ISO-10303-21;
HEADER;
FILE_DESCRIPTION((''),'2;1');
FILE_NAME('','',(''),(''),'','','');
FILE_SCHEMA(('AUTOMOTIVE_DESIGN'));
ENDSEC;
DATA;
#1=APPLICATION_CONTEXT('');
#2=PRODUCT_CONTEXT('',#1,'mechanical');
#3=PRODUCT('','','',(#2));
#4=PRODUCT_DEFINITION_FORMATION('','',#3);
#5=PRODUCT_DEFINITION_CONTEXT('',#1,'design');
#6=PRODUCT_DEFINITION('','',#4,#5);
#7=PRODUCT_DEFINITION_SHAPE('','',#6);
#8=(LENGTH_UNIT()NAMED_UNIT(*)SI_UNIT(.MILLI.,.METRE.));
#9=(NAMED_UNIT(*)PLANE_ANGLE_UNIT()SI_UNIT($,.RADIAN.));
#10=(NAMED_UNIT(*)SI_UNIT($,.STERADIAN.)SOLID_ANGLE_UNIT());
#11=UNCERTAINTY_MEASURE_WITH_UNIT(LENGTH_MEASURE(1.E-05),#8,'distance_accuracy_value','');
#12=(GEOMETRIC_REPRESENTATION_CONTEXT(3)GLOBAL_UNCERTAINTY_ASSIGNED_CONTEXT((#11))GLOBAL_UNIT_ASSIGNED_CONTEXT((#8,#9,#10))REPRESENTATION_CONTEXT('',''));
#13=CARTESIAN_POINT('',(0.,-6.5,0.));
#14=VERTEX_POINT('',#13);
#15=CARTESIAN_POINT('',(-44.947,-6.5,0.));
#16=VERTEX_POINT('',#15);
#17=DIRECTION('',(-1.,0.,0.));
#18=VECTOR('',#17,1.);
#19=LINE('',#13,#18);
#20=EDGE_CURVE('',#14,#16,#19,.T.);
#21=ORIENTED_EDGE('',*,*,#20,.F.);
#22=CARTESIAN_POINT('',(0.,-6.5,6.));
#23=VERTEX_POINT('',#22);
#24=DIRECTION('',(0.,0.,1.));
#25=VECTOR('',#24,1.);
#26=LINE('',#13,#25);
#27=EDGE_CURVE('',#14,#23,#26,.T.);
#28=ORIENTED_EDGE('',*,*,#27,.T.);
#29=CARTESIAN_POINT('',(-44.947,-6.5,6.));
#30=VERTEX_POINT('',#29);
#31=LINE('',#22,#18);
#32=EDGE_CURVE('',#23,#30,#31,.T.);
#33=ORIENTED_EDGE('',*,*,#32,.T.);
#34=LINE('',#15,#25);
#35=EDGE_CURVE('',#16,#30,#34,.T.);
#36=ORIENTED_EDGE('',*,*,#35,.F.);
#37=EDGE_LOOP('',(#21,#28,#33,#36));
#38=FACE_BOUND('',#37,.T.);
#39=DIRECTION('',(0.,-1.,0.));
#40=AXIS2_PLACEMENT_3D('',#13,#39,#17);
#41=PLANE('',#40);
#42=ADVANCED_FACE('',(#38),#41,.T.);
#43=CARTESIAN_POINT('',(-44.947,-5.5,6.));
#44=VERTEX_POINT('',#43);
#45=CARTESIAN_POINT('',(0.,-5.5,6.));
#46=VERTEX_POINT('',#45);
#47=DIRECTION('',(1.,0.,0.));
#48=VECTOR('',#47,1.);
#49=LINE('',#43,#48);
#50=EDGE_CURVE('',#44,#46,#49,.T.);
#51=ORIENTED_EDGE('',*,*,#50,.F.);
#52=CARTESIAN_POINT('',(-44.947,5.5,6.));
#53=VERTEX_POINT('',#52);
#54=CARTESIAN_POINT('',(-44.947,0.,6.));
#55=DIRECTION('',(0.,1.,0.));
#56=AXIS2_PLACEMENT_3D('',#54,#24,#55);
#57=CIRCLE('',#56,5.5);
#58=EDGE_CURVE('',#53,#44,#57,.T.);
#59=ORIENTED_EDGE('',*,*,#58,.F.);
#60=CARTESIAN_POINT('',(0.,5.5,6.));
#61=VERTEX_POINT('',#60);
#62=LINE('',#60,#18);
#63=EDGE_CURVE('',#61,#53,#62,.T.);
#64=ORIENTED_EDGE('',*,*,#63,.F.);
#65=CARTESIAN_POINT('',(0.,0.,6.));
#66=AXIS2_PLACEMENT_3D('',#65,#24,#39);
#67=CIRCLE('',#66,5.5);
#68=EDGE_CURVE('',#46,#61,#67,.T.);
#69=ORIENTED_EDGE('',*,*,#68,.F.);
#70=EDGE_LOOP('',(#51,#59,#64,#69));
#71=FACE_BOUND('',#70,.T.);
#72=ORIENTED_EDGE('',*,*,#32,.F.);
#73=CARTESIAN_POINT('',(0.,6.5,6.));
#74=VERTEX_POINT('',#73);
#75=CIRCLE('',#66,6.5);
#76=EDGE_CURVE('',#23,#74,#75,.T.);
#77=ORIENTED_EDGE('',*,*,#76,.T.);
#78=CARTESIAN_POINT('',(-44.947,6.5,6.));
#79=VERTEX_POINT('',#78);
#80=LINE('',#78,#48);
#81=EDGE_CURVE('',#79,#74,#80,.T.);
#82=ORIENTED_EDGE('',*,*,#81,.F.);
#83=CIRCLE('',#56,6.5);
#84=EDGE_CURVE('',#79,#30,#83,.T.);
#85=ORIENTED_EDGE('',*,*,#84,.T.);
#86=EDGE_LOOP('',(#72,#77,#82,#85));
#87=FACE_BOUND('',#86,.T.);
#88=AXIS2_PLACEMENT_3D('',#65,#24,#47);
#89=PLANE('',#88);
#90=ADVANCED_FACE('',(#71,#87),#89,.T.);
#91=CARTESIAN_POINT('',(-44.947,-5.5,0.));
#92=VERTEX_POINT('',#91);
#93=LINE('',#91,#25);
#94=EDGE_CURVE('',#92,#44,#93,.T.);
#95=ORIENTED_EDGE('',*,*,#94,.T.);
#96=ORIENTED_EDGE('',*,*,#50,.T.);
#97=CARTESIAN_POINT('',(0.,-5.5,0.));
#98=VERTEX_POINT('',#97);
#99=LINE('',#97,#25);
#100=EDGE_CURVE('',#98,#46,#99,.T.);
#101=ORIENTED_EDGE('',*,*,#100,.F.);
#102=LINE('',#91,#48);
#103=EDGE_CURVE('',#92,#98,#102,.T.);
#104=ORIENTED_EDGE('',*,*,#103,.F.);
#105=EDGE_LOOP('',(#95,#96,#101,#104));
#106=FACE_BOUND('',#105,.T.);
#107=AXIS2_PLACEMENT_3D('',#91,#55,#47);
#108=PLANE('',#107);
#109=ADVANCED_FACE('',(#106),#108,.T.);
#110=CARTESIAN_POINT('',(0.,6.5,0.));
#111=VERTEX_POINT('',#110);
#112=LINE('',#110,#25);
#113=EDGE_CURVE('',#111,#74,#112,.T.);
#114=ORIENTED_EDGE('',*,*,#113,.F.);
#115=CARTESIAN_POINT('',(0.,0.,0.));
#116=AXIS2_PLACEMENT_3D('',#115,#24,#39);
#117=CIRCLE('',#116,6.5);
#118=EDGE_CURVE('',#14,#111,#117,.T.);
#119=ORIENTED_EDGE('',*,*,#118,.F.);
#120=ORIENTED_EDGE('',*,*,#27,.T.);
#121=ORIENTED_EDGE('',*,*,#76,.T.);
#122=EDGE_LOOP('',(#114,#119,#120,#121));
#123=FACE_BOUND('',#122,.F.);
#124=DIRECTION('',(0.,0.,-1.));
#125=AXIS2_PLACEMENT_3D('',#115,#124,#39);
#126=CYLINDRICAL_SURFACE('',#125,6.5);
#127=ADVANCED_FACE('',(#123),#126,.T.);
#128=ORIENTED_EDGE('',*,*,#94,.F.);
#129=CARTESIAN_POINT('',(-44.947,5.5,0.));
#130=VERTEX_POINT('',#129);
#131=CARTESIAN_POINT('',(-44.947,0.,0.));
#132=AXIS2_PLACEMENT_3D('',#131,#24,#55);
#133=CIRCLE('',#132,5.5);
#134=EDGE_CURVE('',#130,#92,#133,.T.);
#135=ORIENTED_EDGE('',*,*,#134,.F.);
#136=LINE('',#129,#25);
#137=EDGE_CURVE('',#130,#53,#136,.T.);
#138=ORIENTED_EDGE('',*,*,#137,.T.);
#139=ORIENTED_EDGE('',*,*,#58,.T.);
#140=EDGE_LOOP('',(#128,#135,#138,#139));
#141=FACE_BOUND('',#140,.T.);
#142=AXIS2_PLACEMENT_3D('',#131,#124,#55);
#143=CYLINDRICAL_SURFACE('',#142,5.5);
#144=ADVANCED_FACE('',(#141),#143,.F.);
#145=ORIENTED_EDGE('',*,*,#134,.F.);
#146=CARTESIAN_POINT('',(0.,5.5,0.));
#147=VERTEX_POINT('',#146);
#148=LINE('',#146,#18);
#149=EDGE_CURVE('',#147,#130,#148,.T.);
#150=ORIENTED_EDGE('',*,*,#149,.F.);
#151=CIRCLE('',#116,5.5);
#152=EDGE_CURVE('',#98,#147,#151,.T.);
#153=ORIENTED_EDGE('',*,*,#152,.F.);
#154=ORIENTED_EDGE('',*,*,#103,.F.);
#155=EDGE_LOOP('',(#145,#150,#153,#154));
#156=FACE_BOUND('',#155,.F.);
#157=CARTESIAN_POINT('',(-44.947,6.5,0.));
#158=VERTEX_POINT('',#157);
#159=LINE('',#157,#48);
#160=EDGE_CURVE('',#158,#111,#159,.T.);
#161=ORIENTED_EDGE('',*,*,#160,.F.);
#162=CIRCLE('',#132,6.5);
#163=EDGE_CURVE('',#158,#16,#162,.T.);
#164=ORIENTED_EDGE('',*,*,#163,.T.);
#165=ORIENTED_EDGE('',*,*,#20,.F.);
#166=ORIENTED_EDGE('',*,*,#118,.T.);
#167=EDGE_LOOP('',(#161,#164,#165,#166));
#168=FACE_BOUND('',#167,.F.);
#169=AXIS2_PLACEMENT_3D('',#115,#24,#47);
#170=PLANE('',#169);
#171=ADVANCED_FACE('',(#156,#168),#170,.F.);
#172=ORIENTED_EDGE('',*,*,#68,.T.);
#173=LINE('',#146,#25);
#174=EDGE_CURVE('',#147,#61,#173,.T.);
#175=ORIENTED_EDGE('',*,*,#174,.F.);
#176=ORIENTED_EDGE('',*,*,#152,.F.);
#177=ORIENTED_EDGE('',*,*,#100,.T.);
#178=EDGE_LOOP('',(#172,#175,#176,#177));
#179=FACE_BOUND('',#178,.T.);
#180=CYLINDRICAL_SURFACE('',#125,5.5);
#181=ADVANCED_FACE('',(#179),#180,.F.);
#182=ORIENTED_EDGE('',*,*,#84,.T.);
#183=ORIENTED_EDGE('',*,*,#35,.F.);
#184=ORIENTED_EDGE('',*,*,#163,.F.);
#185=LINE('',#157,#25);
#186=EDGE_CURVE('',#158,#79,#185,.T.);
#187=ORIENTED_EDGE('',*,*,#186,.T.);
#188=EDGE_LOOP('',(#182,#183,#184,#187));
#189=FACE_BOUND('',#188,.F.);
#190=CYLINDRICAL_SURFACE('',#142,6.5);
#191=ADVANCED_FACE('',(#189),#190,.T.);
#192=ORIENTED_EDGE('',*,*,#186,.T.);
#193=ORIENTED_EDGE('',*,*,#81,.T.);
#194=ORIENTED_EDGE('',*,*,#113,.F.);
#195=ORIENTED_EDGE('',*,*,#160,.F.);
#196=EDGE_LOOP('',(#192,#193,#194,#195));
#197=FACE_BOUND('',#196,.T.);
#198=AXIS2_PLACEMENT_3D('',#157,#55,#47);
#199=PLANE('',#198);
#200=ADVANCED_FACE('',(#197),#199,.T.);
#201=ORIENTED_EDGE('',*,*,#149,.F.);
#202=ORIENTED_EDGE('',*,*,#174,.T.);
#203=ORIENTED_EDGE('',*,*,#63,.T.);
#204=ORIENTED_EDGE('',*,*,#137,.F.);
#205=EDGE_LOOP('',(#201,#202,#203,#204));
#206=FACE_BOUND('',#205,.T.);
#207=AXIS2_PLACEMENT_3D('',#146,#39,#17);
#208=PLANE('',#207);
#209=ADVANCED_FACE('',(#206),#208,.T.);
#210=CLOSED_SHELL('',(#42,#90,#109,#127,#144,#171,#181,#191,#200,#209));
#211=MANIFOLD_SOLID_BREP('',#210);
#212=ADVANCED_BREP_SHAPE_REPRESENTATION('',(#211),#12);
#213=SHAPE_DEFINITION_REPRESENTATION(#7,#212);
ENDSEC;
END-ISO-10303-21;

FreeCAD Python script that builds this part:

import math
import FreeCAD as App
import Part
import Sketcher
Q = App.Units.Quantity

doc = App.newDocument("Part")
params = doc.addObject("Spreadsheet::Sheet", "Params")
for row, (alias, value) in enumerate([
    ("sketch1_radius", "6.5 mm"),
    ("sketch1_radius2", "5.5 mm"),
    ("pad1_length", "6 mm"),
], start=1):
    params.set(f"A{row}", alias)
    params.set(f"B{row}", "=" + value)
    params.setAlias(f"B{row}", alias)

body = doc.addObject("PartDesign::Body", "Body")

# Sketch on XY plane
sketch1 = body.newObject("Sketcher::SketchObject", "Sketch")
sketch1.AttachmentSupport = (doc.getObject("XY_Plane"), [""])
sketch1.MapMode = "FlatFace"
sketch1.addGeometry([
    Part.LineSegment(App.Vector(-45, -6, 0), App.Vector(0, -6, 0)),  # 0
    Part.ArcOfCircle(Part.Circle(App.Vector(0, 0, 0), App.Vector(0, 0, 1), 6), math.radians(-90), math.radians(90)),  # 1
    Part.LineSegment(App.Vector(0, 6, 0), App.Vector(-45, 6, 0)),  # 2
    Part.ArcOfCircle(Part.Circle(App.Vector(-45, 0, 0), App.Vector(0, 0, 1), 6), math.radians(90), math.radians(270)),  # 3
    Part.LineSegment(App.Vector(-45, 6, 0), App.Vector(0, 6, 0)),  # 4
    Part.ArcOfCircle(Part.Circle(App.Vector(0, 0, 0), App.Vector(0, 0, 1), 6), math.radians(-90), math.radians(90)),  # 5
    Part.LineSegment(App.Vector(0, -6, 0), App.Vector(-45, -6, 0)),  # 6
    Part.ArcOfCircle(Part.Circle(App.Vector(-45, 0, 0), App.Vector(0, 0, 1), 6), math.radians(90), math.radians(270)),  # 7
], False)
sketch1.addConstraint([
    Sketcher.Constraint("Tangent", 0, 2, 1, 1),
    Sketcher.Constraint("Tangent", 1, 2, 2, 1),
    Sketcher.Constraint("Tangent", 2, 2, 3, 1),
    Sketcher.Constraint("Tangent", 3, 2, 0, 1),
    Sketcher.Constraint("Tangent", 4, 2, 5, 2),
    Sketcher.Constraint("Tangent", 5, 1, 6, 1),
    Sketcher.Constraint("Tangent", 6, 2, 7, 2),
    Sketcher.Constraint("Tangent", 7, 1, 4, 1),
    Sketcher.Constraint("Horizontal", 0),
    Sketcher.Constraint("Horizontal", 2),
    Sketcher.Constraint("Horizontal", 4),
    Sketcher.Constraint("Horizontal", 6),
    Sketcher.Constraint("Coincident", 1, 3, -1, 1),
    Sketcher.Constraint("Coincident", 5, 3, -1, 1),
    Sketcher.Constraint("Vertical", 7, 3, 2, 2),
    Sketcher.Constraint("Radius", 1, Q("6.5 mm")),
    Sketcher.Constraint("Radius", 5, Q("5.5 mm")),
    Sketcher.Constraint("DistanceX", 0, 1, 0, 2, Q("44.947 mm")),
])
sketch1.setExpression("Constraints[15]", "Params.sketch1_radius")
sketch1.setExpression("Constraints[16]", "Params.sketch1_radius2")
pad1 = body.newObject("PartDesign::Pad", "Pad")
pad1.Profile = sketch1
pad1.setExpression("Length", "Params.pad1_length")

doc.recompute()
